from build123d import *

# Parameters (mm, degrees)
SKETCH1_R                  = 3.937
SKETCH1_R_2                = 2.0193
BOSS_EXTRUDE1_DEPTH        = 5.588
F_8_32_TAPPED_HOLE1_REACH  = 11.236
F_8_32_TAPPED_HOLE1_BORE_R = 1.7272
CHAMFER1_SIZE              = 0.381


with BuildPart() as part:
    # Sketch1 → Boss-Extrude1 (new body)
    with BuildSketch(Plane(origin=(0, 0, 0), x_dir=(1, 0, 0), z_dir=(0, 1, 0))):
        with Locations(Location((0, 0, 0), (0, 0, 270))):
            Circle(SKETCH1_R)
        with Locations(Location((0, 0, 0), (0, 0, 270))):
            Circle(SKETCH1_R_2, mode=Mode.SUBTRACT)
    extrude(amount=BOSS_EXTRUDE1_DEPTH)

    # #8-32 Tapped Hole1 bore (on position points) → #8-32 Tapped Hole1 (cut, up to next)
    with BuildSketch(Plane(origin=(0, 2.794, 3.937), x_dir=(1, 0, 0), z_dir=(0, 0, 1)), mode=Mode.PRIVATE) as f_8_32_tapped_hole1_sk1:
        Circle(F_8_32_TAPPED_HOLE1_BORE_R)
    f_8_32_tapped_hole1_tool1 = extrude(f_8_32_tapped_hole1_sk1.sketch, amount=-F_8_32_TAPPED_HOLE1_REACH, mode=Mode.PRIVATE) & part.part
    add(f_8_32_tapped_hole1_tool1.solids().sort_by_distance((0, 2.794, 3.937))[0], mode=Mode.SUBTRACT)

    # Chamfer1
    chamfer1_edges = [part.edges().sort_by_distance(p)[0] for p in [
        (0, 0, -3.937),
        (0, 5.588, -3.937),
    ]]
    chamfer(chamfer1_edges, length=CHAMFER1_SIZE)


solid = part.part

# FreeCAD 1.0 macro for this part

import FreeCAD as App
import Part
import Sketcher

V = App.Vector
Q = App.Units.Quantity


def edges_at(feature, points):
    """Names of the edges that pass closest to the given points."""
    edges = feature.Shape.Edges
    near = lambda p: min(range(len(edges)), key=lambda i: edges[i].distToShape(Part.Vertex(*p))[0])
    return sorted({f"Edge{near(p) + 1}" for p in points})

doc = App.newDocument("Part")
body = doc.addObject("PartDesign::Body", "Body")

# Sketch on XZ plane
sketch1 = doc.addObject("Sketcher::SketchObject", "Sketch")
body.addObject(sketch1)
sketch1.AttachmentSupport = (doc.XZ_Plane, [""])
sketch1.MapMode = "FlatFace"
sketch1.addGeometry([
    Part.Circle(V(0, 0, 0), V(0, 0, 1), 3.937),
    Part.Circle(V(0, 0, 0), V(0, 0, 1), 2.0193),
], False)
sketch1.addConstraint([
    Sketcher.Constraint("Coincident", 0, 3, -1, 1),
    Sketcher.Constraint("Coincident", 1, 3, -1, 1),
    Sketcher.Constraint("Diameter", 0, Q("0.31 in")),
    Sketcher.Constraint("Diameter", 1, Q("0.159 in")),
])
pad1 = doc.addObject("PartDesign::Pad", "Pad")
body.addObject(pad1)
pad1.Profile = sketch1
pad1.Length = Q("0.22 in")
pad1.Reversed = True

# Sketch on XY plane
sketch2 = doc.addObject("Sketcher::SketchObject", "Sketch001")
body.addObject(sketch2)
sketch2.AttachmentSupport = (doc.XY_Plane, [""])
sketch2.MapMode = "FlatFace"
sketch2.AttachmentOffset = App.Placement(V(0, 0, 0.155 * 25.4), App.Rotation())
sketch2.addGeometry(Part.Circle(V(0, 2.794, 0), V(0, 0, 1), 1.7272), False)
sketch2.addConstraint([
    Sketcher.Constraint("PointOnObject", 0, 3, -2),
    Sketcher.Constraint("Diameter", 0, Q("0.136 in")),
    Sketcher.Constraint("DistanceY", -1, 1, 0, 3, Q("0.11 in")),
])
pocket1 = doc.addObject("PartDesign::Pocket", "Pocket")
body.addObject(pocket1)
pocket1.Profile = sketch2
pocket1.Type = "UpToFirst"
doc.recompute()

chamfer = doc.addObject("PartDesign::Chamfer", "Chamfer")
body.addObject(chamfer)
chamfer.Base = (pocket1, edges_at(pocket1, [(0, 0, -3.937), (0, 5.588, -3.937)]))
chamfer.Size = Q("0.015 in")

doc.recompute()
